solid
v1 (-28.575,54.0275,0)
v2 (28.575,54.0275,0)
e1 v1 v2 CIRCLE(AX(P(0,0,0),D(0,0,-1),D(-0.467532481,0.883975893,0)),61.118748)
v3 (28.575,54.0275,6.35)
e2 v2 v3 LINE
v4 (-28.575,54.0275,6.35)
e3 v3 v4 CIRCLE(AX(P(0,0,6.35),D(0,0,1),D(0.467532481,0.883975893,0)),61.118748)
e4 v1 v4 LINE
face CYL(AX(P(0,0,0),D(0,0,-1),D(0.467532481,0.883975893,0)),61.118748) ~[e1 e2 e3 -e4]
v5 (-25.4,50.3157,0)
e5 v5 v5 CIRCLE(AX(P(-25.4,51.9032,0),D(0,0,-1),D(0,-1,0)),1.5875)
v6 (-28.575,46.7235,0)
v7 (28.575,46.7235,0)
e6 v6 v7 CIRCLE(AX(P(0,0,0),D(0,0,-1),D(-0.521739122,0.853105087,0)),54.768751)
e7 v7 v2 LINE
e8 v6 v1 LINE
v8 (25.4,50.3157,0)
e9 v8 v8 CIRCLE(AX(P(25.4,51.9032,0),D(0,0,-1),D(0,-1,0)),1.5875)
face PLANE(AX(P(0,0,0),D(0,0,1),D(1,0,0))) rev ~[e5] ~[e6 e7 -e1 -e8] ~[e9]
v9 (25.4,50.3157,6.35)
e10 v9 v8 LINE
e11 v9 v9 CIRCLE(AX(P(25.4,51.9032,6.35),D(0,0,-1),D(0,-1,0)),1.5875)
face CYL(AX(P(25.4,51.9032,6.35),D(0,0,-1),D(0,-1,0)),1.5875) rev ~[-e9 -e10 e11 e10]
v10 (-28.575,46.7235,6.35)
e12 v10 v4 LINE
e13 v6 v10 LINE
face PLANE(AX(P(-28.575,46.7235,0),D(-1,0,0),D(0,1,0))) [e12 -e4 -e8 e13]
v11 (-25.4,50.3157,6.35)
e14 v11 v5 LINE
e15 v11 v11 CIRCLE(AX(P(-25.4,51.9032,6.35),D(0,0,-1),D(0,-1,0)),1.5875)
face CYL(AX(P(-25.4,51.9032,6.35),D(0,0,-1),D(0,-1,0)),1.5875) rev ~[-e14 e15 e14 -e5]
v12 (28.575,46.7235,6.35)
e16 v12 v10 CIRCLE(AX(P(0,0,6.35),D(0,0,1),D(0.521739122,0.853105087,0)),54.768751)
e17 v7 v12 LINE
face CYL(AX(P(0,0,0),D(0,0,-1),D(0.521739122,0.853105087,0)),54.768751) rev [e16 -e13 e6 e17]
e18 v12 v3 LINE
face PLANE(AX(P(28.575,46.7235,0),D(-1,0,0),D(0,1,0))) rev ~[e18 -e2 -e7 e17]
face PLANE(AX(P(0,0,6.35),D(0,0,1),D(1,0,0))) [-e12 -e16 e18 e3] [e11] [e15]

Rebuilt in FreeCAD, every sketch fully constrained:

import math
import FreeCAD as App
import Part
import Sketcher

V = App.Vector
Q = App.Units.Quantity

doc = App.newDocument("Part")
body = doc.addObject("PartDesign::Body", "Body")

# Sketch on XY plane
sketch1 = body.newObject("Sketcher::SketchObject", "Sketch")
sketch1.AttachmentSupport = (doc.getObject("XY_Plane"), [""])
sketch1.MapMode = "FlatFace"
sketch1.addGeometry([
    Part.ArcOfCircle(Part.Circle(V(0, 0, 0), V(0, 0, 1), 55), math.radians(59), math.radians(121)),
    Part.LineSegment(V(29, 47, 0), V(29, 54, 0)),
    Part.ArcOfCircle(Part.Circle(V(0, 0, 0), V(0, 0, 1), 61), math.radians(62), math.radians(118)),
    Part.LineSegment(V(-29, 54, 0), V(-29, 47, 0)),
], False)
sketch1.addConstraint([
    Sketcher.Constraint("Coincident", 0, 1, 1, 1),
    Sketcher.Constraint("Coincident", 1, 2, 2, 1),
    Sketcher.Constraint("Coincident", 2, 2, 3, 1),
    Sketcher.Constraint("Coincident", 3, 2, 0, 2),
    Sketcher.Constraint("Vertical", 1),
    Sketcher.Constraint("Vertical", 3),
    Sketcher.Constraint("Coincident", 0, 3, -1, 1),
    Sketcher.Constraint("Coincident", 2, 3, -1, 1),
    Sketcher.Constraint("Horizontal", 1, 2, 2, 2),
    Sketcher.Constraint("DistanceX", 2, 2, 1, 2, Q("2.25 in")),
    Sketcher.Constraint("Radius", 0, Q("2.156252 in")),
    Sketcher.Constraint("Radius", 2, Q("2.406248 in")),
])
pad1 = body.newObject("PartDesign::Pad", "Pad")
pad1.Profile = sketch1
pad1.Length = Q("0.25 in")

# Sketch on XY plane
sketch2 = body.newObject("Sketcher::SketchObject", "Sketch001")
sketch2.AttachmentSupport = (doc.getObject("XY_Plane"), [""])
sketch2.MapMode = "FlatFace"
sketch2.AttachmentOffset = App.Placement(V(0, 0, 0.25 * 25.4), App.Rotation())
sketch2.addGeometry([
    Part.Circle(V(25.4, 51.9, 0), V(0, 0, 1), 1.6),
    Part.Circle(V(-25.4, 51.9, 0), V(0, 0, 1), 1.6),
], False)
sketch2.addConstraint([
    Sketcher.Constraint("Equal", 0, 1),
    Sketcher.Constraint("Symmetric", 0, 3, 1, 3, -2),
    Sketcher.Constraint("Diameter", 0, Q("0.125 in")),
    Sketcher.Constraint("DistanceX", -1, 1, 0, 3, Q("1 in")),
    Sketcher.Constraint("DistanceY", -1, 1, 0, 3, 51.9032),
])
doc.recompute()
hole = body.newObject("PartDesign::Hole", "Hole")
hole.Profile = sketch2
hole.ThreadType = "None"
hole.Diameter = Q("0.125 in")
hole.DepthType = "ThroughAll"

doc.recompute()
